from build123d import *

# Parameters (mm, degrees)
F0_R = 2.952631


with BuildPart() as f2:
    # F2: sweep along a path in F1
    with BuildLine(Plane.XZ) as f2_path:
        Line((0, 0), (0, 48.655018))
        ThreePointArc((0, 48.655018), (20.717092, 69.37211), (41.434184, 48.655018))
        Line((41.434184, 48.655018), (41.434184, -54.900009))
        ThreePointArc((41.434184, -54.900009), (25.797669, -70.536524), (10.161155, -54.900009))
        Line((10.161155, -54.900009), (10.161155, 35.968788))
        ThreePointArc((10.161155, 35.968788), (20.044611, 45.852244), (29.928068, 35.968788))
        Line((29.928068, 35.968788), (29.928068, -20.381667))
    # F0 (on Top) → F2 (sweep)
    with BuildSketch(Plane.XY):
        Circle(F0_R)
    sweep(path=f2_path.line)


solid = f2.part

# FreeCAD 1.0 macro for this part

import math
import FreeCAD as App
import Part
import Sketcher

V = App.Vector
Q = App.Units.Quantity

doc = App.newDocument("Part")
body = doc.addObject("PartDesign::Body", "Body")

# Sketch on XY plane
sketch1 = doc.addObject("Sketcher::SketchObject", "Sketch")
body.addObject(sketch1)
sketch1.AttachmentSupport = (doc.XY_Plane, [""])
sketch1.MapMode = "FlatFace"
sketch1.addGeometry(Part.Circle(V(0, 0, 0), V(0, 0, 1), 3), False)
sketch1.addConstraint([
    Sketcher.Constraint("Coincident", 0, 3, -1, 1),
    Sketcher.Constraint("Diameter", 0, Q("5.905262 mm")),
])

# Sketch on XZ plane
sketch2 = doc.addObject("Sketcher::SketchObject", "Sketch001")
body.addObject(sketch2)
sketch2.AttachmentSupport = (doc.XZ_Plane, [""])
sketch2.MapMode = "FlatFace"
sketch2.addGeometry([
    Part.LineSegment(V(0, 0, 0), V(0, 49, 0)),  # 0
    Part.ArcOfCircle(Part.Circle(V(21, 49, 0), V(0, 0, 1), 21), math.radians(0), math.radians(180)),  # 1
    Part.LineSegment(V(41, 49, 0), V(41, -55, 0)),  # 2
    Part.ArcOfCircle(Part.Circle(V(26, -55, 0), V(0, 0, 1), 16), math.radians(180), math.radians(360)),  # 3
    Part.LineSegment(V(10, -55, 0), V(10, 36, 0)),  # 4
    Part.ArcOfCircle(Part.Circle(V(20, 36, 0), V(0, 0, 1), 10), math.radians(0), math.radians(180)),  # 5
    Part.LineSegment(V(30, 36, 0), V(30, -20, 0)),  # 6
], False)
sketch2.addConstraint([
    Sketcher.Constraint("Tangent", 0, 2, 1, 2),
    Sketcher.Constraint("Tangent", 1, 1, 2, 1),
    Sketcher.Constraint("Tangent", 2, 2, 3, 2),
    Sketcher.Constraint("Tangent", 3, 1, 4, 1),
    Sketcher.Constraint("Tangent", 4, 2, 5, 2),
    Sketcher.Constraint("Tangent", 5, 1, 6, 1),
    Sketcher.Constraint("Vertical", 0),
    Sketcher.Constraint("Vertical", 2),
    Sketcher.Constraint("Vertical", 4),
    Sketcher.Constraint("Vertical", 6),
    Sketcher.Constraint("Coincident", 0, 1, -1, 1),
    Sketcher.Constraint("Radius", 1, Q("20.717092 mm")),
    Sketcher.Constraint("Radius", 3, Q("15.636515 mm")),
    Sketcher.Constraint("Radius", 5, Q("9.883456 mm")),
    Sketcher.Constraint("DistanceY", 0, 1, 0, 2, Q("48.655018 mm")),
    Sketcher.Constraint("DistanceY", 2, 2, 2, 1, Q("103.555027 mm")),
    Sketcher.Constraint("DistanceY", 4, 1, 4, 2, Q("90.868797 mm")),
    Sketcher.Constraint("DistanceY", 6, 2, 6, 1, Q("56.350455 mm")),
])
doc.recompute()

additivepipe = doc.addObject("PartDesign::AdditivePipe", "AdditivePipe")
body.addObject(additivepipe)
additivepipe.Profile = sketch1
additivepipe.Spine = (sketch2, ["Edge1", "Edge2", "Edge3", "Edge4", "Edge5", "Edge6", "Edge7"])

doc.recompute()
